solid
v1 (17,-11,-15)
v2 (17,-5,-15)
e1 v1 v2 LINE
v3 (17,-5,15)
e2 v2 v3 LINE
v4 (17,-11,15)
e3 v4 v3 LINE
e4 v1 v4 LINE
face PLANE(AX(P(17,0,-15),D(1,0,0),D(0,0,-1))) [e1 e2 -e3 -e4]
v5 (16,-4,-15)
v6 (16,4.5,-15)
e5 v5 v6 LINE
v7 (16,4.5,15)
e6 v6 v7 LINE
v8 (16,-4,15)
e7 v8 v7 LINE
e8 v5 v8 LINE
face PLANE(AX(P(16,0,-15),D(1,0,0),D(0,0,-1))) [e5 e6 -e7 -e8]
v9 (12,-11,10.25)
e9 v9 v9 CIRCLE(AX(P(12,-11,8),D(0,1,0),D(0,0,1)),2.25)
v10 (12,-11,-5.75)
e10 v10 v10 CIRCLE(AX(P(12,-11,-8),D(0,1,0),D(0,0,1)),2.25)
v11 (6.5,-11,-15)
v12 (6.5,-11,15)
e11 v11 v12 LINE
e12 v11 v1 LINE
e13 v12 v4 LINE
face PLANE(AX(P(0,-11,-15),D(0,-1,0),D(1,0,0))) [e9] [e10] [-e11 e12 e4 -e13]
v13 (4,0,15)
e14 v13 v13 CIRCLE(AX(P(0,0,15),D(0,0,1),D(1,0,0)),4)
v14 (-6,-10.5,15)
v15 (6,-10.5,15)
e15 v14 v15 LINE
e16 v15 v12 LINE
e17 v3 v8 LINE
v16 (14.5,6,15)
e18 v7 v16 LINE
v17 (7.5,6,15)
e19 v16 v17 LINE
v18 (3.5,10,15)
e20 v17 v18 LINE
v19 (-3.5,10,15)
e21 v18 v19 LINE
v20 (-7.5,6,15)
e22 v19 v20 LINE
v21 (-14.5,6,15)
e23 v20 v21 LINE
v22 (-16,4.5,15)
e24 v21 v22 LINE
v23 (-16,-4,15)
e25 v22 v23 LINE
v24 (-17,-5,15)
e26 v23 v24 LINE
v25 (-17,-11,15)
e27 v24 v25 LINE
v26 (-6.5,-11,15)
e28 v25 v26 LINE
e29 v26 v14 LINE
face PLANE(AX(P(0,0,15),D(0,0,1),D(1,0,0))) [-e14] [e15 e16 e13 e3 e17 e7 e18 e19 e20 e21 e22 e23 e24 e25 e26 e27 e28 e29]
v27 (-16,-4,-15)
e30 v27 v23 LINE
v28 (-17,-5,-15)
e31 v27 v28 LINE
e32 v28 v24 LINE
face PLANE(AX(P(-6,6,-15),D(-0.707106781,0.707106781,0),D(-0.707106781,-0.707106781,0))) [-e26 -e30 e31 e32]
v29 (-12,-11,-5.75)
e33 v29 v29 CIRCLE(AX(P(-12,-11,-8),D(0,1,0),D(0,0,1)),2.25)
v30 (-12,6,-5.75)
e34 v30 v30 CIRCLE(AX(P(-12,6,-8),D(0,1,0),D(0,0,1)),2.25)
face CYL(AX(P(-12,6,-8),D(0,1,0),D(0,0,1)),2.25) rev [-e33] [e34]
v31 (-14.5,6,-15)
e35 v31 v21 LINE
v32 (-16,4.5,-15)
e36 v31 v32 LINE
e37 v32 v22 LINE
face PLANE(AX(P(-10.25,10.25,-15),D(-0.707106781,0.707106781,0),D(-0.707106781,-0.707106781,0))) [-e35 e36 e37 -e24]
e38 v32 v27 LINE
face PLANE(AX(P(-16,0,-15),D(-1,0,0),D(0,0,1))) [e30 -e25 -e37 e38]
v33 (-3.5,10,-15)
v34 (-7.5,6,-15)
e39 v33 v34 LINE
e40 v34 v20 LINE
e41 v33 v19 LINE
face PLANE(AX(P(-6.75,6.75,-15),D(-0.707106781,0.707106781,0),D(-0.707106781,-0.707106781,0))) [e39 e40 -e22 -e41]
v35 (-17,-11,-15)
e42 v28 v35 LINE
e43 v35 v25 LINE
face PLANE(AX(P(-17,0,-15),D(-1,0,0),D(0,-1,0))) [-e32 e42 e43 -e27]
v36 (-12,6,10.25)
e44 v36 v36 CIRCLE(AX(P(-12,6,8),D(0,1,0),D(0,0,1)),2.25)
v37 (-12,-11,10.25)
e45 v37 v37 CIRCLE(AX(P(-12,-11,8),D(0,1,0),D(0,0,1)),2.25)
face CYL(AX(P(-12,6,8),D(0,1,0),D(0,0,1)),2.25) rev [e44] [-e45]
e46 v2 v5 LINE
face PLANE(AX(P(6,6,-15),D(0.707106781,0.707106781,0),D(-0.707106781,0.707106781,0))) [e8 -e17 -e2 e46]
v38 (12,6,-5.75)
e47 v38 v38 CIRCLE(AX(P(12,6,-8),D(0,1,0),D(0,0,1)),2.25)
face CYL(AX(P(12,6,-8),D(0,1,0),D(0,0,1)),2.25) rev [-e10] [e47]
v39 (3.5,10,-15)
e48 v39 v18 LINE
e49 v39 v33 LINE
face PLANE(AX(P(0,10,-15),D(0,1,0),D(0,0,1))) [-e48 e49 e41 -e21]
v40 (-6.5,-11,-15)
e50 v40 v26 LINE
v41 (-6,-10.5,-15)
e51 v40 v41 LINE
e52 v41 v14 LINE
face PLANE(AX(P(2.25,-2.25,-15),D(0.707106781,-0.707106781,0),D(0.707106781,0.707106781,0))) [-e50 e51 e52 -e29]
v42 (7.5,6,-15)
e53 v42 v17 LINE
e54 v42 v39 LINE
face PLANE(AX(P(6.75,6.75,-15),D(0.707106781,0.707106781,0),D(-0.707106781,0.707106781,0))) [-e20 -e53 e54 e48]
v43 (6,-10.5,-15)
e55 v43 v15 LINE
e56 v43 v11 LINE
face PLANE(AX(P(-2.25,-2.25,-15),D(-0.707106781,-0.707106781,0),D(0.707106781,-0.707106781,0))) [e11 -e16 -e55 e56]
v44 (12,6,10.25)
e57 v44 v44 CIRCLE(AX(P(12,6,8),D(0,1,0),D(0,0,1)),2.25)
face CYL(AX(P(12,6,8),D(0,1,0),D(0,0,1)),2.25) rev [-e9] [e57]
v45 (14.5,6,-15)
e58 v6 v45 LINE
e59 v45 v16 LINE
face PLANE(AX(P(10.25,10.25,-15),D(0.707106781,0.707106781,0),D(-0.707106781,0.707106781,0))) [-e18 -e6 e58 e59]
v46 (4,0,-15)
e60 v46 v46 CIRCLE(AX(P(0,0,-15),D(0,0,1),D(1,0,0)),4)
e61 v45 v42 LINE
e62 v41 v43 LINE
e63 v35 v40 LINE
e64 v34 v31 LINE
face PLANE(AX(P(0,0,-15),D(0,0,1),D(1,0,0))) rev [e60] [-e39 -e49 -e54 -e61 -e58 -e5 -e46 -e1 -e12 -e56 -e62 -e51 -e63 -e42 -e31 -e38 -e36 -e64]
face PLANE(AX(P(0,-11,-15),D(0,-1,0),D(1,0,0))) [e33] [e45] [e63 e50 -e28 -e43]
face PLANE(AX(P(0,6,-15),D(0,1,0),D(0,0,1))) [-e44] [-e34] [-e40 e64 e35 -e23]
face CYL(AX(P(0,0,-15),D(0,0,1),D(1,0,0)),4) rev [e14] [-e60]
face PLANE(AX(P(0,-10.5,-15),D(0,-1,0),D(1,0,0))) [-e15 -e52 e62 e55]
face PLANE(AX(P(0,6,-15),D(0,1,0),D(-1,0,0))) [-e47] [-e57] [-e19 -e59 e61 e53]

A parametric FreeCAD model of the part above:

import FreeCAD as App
import Part
import Sketcher
from FreeCAD import Vector

doc = App.newDocument("Part")
body = doc.addObject("PartDesign::Body", "Body")

sketch1 = doc.addObject("Sketcher::SketchObject", "Sketch")
body.addObject(sketch1)
sketch1.AttachmentSupport = (doc.XY_Plane, [""])
sketch1.MapMode = "FlatFace"
sketch1.addGeometry([
    Part.LineSegment(Vector(-17, -11, 0), Vector(-6.5, -11, 0)),
    Part.LineSegment(Vector(-6.5, -11, 0), Vector(-6, -10.5, 0)),
    Part.LineSegment(Vector(-6, -10.5, 0), Vector(6, -10.5, 0)),
    Part.LineSegment(Vector(6, -10.5, 0), Vector(6.5, -11, 0)),
    Part.LineSegment(Vector(6.5, -11, 0), Vector(17, -11, 0)),
    Part.LineSegment(Vector(17, -11, 0), Vector(17, -5, 0)),
    Part.LineSegment(Vector(17, -5, 0), Vector(16, -4, 0)),
    Part.LineSegment(Vector(16, -4, 0), Vector(16, 4.5, 0)),
    Part.LineSegment(Vector(16, 4.5, 0), Vector(14.5, 6, 0)),
    Part.LineSegment(Vector(14.5, 6, 0), Vector(7.5, 6, 0)),
    Part.LineSegment(Vector(7.5, 6, 0), Vector(3.5, 10, 0)),
    Part.LineSegment(Vector(3.5, 10, 0), Vector(-3.5, 10, 0)),
    Part.LineSegment(Vector(-3.5, 10, 0), Vector(-7.5, 6, 0)),
    Part.LineSegment(Vector(-7.5, 6, 0), Vector(-14.5, 6, 0)),
    Part.LineSegment(Vector(-14.5, 6, 0), Vector(-16, 4.5, 0)),
    Part.LineSegment(Vector(-16, 4.5, 0), Vector(-16, -4, 0)),
    Part.LineSegment(Vector(-16, -4, 0), Vector(-17, -5, 0)),
    Part.LineSegment(Vector(-17, -5, 0), Vector(-17, -11, 0)),
    Part.Circle(Vector(0, 0, 0), Vector(0, 0, 1), 4),
], False)
sketch1.addConstraint([
    Sketcher.Constraint("Coincident", 0, 2, 1, 1),
    Sketcher.Constraint("Coincident", 1, 2, 2, 1),
    Sketcher.Constraint("Coincident", 2, 2, 3, 1),
    Sketcher.Constraint("Coincident", 3, 2, 4, 1),
    Sketcher.Constraint("Coincident", 4, 2, 5, 1),
    Sketcher.Constraint("Coincident", 5, 2, 6, 1),
    Sketcher.Constraint("Coincident", 6, 2, 7, 1),
    Sketcher.Constraint("Coincident", 7, 2, 8, 1),
    Sketcher.Constraint("Coincident", 8, 2, 9, 1),
    Sketcher.Constraint("Coincident", 9, 2, 10, 1),
    Sketcher.Constraint("Coincident", 10, 2, 11, 1),
    Sketcher.Constraint("Coincident", 11, 2, 12, 1),
    Sketcher.Constraint("Coincident", 12, 2, 13, 1),
    Sketcher.Constraint("Coincident", 13, 2, 14, 1),
    Sketcher.Constraint("Coincident", 14, 2, 15, 1),
    Sketcher.Constraint("Coincident", 15, 2, 16, 1),
    Sketcher.Constraint("Coincident", 16, 2, 17, 1),
    Sketcher.Constraint("Coincident", 17, 2, 0, 1),
    Sketcher.Constraint("Horizontal", 0),
    Sketcher.Constraint("Horizontal", 2),
    Sketcher.Constraint("Horizontal", 4),
    Sketcher.Constraint("Vertical", 5),
    Sketcher.Constraint("Vertical", 7),
    Sketcher.Constraint("Horizontal", 9),
    Sketcher.Constraint("Horizontal", 11),
    Sketcher.Constraint("Horizontal", 13),
    Sketcher.Constraint("Vertical", 15),
    Sketcher.Constraint("Vertical", 17),
    Sketcher.Constraint("Coincident", 18, 3, -1, 1),
    Sketcher.Constraint("Symmetric", 0, 2, 3, 2, -2),
    Sketcher.Constraint("Symmetric", 9, 2, 12, 2, -2),
    Sketcher.Constraint("Symmetric", 7, 2, 14, 2, -2),
    Sketcher.Constraint("Symmetric", 5, 2, 16, 2, -2),
    Sketcher.Constraint("Perpendicular", 1, 3),
    Sketcher.Constraint("Parallel", 3, 6),
    Sketcher.Constraint("Parallel", 6, 8),
    Sketcher.Constraint("Parallel", 8, 10),
    Sketcher.Constraint("Perpendicular", 10, 12),
    Sketcher.Constraint("Parallel", 12, 14),
    Sketcher.Constraint("Parallel", 14, 16),
    Sketcher.Constraint("Horizontal", 6, 2, 15, 2),
    Sketcher.Constraint("Equal", 9, 11),
    Sketcher.Constraint("Diameter", 18, 8.0),
    Sketcher.Constraint("DistanceX", 2, 1, 2, 2, 12.0),
    Sketcher.Constraint("DistanceX", 9, 2, 9, 1, 7.0),
    Sketcher.Constraint("DistanceY", 5, 1, 5, 2, 6.0),
    Sketcher.Constraint("DistanceX", 0, 1, 0, 2, 10.5),
    Sketcher.Constraint("DistanceY", 7, 1, 7, 2, 8.5),
    Sketcher.Constraint("DistanceY", 0, 2, -1, 1, 11.0),
    Sketcher.Constraint("DistanceX", -1, 1, 4, 2, 17.0),
    Sketcher.Constraint("DistanceX", -1, 1, 6, 2, 16.0),
    Sketcher.Constraint("DistanceY", -1, 1, 8, 2, 6.0),
])
pad1 = doc.addObject("PartDesign::Pad", "Pad")
body.addObject(pad1)
pad1.Profile = sketch1
pad1.Type = "TwoLengths"
pad1.Length = 15
pad1.Length2 = 15

sketch2 = doc.addObject("Sketcher::SketchObject", "Sketch001")
body.addObject(sketch2)
sketch2.AttachmentSupport = (doc.XZ_Plane, [""])
sketch2.MapMode = "FlatFace"
sketch2.AttachmentOffset = App.Placement(Vector(0, 0, -6), App.Rotation())
sketch2.addGeometry([
    Part.Circle(Vector(-12, -8, 0), Vector(0, 0, 1), 2.2),
    Part.Circle(Vector(12, -8, 0), Vector(0, 0, 1), 2.2),
    Part.Circle(Vector(12, 8, 0), Vector(0, 0, 1), 2.2),
    Part.Circle(Vector(-12, 8, 0), Vector(0, 0, 1), 2.2),
], False)
sketch2.addConstraint([
    Sketcher.Constraint("Equal", 0, 1),
    Sketcher.Constraint("Equal", 1, 2),
    Sketcher.Constraint("Equal", 2, 3),
    Sketcher.Constraint("Symmetric", 0, 3, 2, 3, -1, 1),
    Sketcher.Constraint("Symmetric", 1, 3, 3, 3, -1, 1),
    Sketcher.Constraint("Symmetric", 0, 3, 1, 3, -2),
    Sketcher.Constraint("Diameter", 0, 4.5),
    Sketcher.Constraint("DistanceX", 0, 3, -1, 1, 12.0),
    Sketcher.Constraint("DistanceY", 0, 3, -1, 1, 8.0),
])
doc.recompute()
hole = doc.addObject("PartDesign::Hole", "Hole")
body.addObject(hole)
hole.Profile = sketch2
hole.ThreadType = "None"
hole.Diameter = 4.5
hole.DepthType = "ThroughAll"
hole.Reversed = True

doc.recompute()
